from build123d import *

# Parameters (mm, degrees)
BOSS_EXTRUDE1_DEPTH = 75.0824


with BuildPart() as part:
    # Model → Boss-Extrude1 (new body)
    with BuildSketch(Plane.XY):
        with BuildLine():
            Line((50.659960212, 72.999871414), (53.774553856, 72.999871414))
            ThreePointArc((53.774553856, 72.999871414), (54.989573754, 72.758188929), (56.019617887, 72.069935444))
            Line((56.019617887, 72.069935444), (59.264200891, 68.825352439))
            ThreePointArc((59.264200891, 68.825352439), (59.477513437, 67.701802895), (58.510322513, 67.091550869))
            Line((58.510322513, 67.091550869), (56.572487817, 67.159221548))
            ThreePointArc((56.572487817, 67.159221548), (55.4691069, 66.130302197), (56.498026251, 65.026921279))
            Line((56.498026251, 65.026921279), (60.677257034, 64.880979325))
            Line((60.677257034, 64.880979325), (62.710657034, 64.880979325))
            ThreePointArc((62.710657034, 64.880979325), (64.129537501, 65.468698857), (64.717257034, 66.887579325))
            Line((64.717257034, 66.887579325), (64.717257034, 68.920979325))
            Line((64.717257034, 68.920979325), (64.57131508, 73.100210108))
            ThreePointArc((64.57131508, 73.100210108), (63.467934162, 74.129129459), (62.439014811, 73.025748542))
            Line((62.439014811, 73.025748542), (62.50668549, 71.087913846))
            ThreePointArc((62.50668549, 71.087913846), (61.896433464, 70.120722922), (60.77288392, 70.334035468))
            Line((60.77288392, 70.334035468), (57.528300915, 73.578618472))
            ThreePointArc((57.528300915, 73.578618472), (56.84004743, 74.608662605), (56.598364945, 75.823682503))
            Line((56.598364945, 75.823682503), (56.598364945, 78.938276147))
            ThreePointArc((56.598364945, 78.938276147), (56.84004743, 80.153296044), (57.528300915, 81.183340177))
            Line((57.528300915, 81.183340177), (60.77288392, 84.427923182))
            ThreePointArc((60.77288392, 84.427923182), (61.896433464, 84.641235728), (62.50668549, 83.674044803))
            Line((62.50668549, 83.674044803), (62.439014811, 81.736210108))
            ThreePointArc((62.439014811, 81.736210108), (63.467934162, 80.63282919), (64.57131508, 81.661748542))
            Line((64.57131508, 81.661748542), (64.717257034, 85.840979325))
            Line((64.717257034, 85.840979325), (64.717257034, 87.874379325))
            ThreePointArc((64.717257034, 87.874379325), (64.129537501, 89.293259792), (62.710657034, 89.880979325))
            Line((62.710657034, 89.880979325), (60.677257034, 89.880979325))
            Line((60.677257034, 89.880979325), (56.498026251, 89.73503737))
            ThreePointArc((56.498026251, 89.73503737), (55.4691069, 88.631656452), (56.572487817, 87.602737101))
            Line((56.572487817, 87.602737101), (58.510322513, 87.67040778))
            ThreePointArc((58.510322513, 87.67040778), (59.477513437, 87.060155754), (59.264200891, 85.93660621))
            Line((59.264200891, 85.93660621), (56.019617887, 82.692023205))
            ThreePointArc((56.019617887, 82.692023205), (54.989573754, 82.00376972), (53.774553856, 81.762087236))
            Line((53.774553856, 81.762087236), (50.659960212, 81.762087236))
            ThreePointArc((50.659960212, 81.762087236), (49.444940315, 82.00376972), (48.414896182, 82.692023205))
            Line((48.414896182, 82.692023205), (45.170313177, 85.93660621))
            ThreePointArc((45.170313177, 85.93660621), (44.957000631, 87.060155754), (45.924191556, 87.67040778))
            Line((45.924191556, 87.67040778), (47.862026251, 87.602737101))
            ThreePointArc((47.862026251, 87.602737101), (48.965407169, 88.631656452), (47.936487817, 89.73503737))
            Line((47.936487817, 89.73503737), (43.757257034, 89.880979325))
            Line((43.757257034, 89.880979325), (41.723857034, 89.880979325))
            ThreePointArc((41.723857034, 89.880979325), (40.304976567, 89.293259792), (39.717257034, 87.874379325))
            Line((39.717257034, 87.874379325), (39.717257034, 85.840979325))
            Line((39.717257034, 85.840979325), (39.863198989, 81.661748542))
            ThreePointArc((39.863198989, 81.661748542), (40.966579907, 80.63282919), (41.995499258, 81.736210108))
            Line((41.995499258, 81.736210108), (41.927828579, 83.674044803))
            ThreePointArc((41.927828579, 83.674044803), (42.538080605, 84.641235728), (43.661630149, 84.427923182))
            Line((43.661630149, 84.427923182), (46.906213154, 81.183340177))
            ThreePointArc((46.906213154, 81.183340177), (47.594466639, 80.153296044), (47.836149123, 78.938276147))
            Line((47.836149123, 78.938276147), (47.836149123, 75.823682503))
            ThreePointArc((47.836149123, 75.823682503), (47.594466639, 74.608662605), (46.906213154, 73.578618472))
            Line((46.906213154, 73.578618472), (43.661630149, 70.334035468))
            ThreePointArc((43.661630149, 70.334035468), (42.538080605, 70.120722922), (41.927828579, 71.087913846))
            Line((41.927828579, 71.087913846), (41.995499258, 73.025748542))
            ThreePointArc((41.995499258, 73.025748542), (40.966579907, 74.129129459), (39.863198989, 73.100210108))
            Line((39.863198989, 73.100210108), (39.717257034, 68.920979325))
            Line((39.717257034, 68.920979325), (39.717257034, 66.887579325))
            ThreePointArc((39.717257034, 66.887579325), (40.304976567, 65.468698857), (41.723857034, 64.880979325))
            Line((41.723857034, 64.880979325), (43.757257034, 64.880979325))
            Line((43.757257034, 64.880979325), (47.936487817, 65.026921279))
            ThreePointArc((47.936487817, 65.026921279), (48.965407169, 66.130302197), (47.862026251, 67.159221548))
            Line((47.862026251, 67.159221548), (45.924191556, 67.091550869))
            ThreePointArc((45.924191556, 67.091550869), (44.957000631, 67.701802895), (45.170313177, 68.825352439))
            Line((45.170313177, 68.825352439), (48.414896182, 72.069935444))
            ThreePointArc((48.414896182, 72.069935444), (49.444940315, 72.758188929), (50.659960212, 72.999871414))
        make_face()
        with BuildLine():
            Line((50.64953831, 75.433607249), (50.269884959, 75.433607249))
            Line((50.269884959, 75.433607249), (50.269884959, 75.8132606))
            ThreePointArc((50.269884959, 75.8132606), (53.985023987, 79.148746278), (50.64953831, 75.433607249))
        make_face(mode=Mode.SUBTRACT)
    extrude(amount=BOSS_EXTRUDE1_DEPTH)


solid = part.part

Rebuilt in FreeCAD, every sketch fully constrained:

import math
import FreeCAD as App
import Part
import Sketcher
Q = App.Units.Quantity

doc = App.newDocument("Part")
params = doc.addObject("Spreadsheet::Sheet", "Params")
for row, (alias, value) in enumerate([
    ("sketch1_radius", "0.04 in"),
    ("sketch1_radius2", "0.125 in"),
    ("sketch1_radius3", "0.042 in"),
    ("sketch1_radius4", "0.079 in"),
    ("pad1_length", "2.956 in"),
], start=1):
    params.set(f"A{row}", alias)
    params.set(f"B{row}", "=" + value)
    params.setAlias(f"B{row}", alias)

body = doc.addObject("PartDesign::Body", "Body")

# Sketch on XY plane
sketch1 = doc.addObject("Sketcher::SketchObject", "Sketch")
body.addObject(sketch1)
sketch1.AttachmentSupport = (doc.XY_Plane, [""])
sketch1.MapMode = "FlatFace"
sketch1.addGeometry(Part.LineSegment(App.Vector(50.65996, 72.999871, 0), App.Vector(53.774554, 72.999871, 0)), False)
sketch1.addGeometry(Part.ArcOfCircle(Part.Circle(App.Vector(53.774554, 69.824871, 0), App.Vector(0, 0, 1), 3.175), math.radians(45), math.radians(90)), False)
sketch1.addGeometry(Part.LineSegment(App.Vector(56.019618, 72.069935, 0), App.Vector(59.264201, 68.825352, 0)), False)
sketch1.addGeometry(Part.ArcOfCircle(Part.Circle(App.Vector(58.54578, 68.106932, 0), App.Vector(0, 0, 1), 1.016), math.radians(-92), math.radians(45)), False)
sketch1.addGeometry(Part.LineSegment(App.Vector(58.510323, 67.091551, 0), App.Vector(56.572488, 67.159222, 0)), False)
sketch1.addGeometry(Part.ArcOfCircle(Part.Circle(App.Vector(56.535257, 66.093071, 0), App.Vector(0, 0, 1), 1.0668), math.radians(88), math.radians(268)), False)
sketch1.addGeometry(Part.LineSegment(App.Vector(56.498026, 65.026921, 0), App.Vector(60.677257, 64.880979, 0)), False)
sketch1.addGeometry(Part.LineSegment(App.Vector(60.677257, 64.880979, 0), App.Vector(62.710657, 64.880979, 0)), False)
sketch1.addGeometry(Part.ArcOfCircle(Part.Circle(App.Vector(62.710657, 66.887579, 0), App.Vector(0, 0, 1), 2.0066), math.radians(-90), math.radians(0)), False)
sketch1.addGeometry(Part.LineSegment(App.Vector(64.717257, 66.887579, 0), App.Vector(64.717257, 68.920979, 0)), False)
sketch1.addGeometry(Part.LineSegment(App.Vector(64.717257, 68.920979, 0), App.Vector(64.571315, 73.10021, 0)), False)
sketch1.addGeometry(Part.ArcOfCircle(Part.Circle(App.Vector(63.505165, 73.062979, 0), App.Vector(0, 0, 1), 1.0668), math.radians(2), math.radians(182)), False)
sketch1.addGeometry(Part.LineSegment(App.Vector(62.439015, 73.025749, 0), App.Vector(62.506685, 71.087914, 0)), False)
sketch1.addGeometry(Part.ArcOfCircle(Part.Circle(App.Vector(61.491304, 71.052456, 0), App.Vector(0, 0, 1), 1.016), math.radians(-135), math.radians(2)), False)
sketch1.addGeometry(Part.LineSegment(App.Vector(60.772884, 70.334035, 0), App.Vector(57.528301, 73.578618, 0)), False)
sketch1.addGeometry(Part.ArcOfCircle(Part.Circle(App.Vector(59.773365, 75.823683, 0), App.Vector(0, 0, 1), 3.175), math.radians(-180), math.radians(-135)), False)
sketch1.addGeometry(Part.LineSegment(App.Vector(56.598365, 75.823683, 0), App.Vector(56.598365, 78.938276, 0)), False)
sketch1.addGeometry(Part.ArcOfCircle(Part.Circle(App.Vector(59.773365, 78.938276, 0), App.Vector(0, 0, 1), 3.175), math.radians(135), math.radians(180)), False)
sketch1.addGeometry(Part.LineSegment(App.Vector(57.528301, 81.18334, 0), App.Vector(60.772884, 84.427923, 0)), False)
sketch1.addGeometry(Part.ArcOfCircle(Part.Circle(App.Vector(61.491304, 83.709503, 0), App.Vector(0, 0, 1), 1.016), math.radians(-2), math.radians(135)), False)
sketch1.addGeometry(Part.LineSegment(App.Vector(62.506685, 83.674045, 0), App.Vector(62.439015, 81.73621, 0)), False)
sketch1.addGeometry(Part.ArcOfCircle(Part.Circle(App.Vector(63.505165, 81.698979, 0), App.Vector(0, 0, 1), 1.0668), math.radians(178), math.radians(358)), False)
sketch1.addGeometry(Part.LineSegment(App.Vector(64.571315, 81.661749, 0), App.Vector(64.717257, 85.840979, 0)), False)
sketch1.addGeometry(Part.LineSegment(App.Vector(64.717257, 85.840979, 0), App.Vector(64.717257, 87.874379, 0)), False)
sketch1.addGeometry(Part.ArcOfCircle(Part.Circle(App.Vector(62.710657, 87.874379, 0), App.Vector(0, 0, 1), 2.0066), math.radians(0), math.radians(90)), False)
sketch1.addGeometry(Part.LineSegment(App.Vector(62.710657, 89.880979, 0), App.Vector(60.677257, 89.880979, 0)), False)
sketch1.addGeometry(Part.LineSegment(App.Vector(60.677257, 89.880979, 0), App.Vector(56.498026, 89.735037, 0)), False)
sketch1.addGeometry(Part.ArcOfCircle(Part.Circle(App.Vector(56.535257, 88.668887, 0), App.Vector(0, 0, 1), 1.0668), math.radians(92), math.radians(272)), False)
sketch1.addGeometry(Part.LineSegment(App.Vector(56.572488, 87.602737, 0), App.Vector(58.510323, 87.670408, 0)), False)
sketch1.addGeometry(Part.ArcOfCircle(Part.Circle(App.Vector(58.54578, 86.655027, 0), App.Vector(0, 0, 1), 1.016), math.radians(-45), math.radians(92)), False)
sketch1.addGeometry(Part.LineSegment(App.Vector(59.264201, 85.936606, 0), App.Vector(56.019618, 82.692023, 0)), False)
sketch1.addGeometry(Part.ArcOfCircle(Part.Circle(App.Vector(53.774554, 84.937087, 0), App.Vector(0, 0, 1), 3.175), math.radians(-90), math.radians(-45)), False)
sketch1.addGeometry(Part.LineSegment(App.Vector(53.774554, 81.762087, 0), App.Vector(50.65996, 81.762087, 0)), False)
sketch1.addGeometry(Part.ArcOfCircle(Part.Circle(App.Vector(50.65996, 84.937087, 0), App.Vector(0, 0, 1), 3.175), math.radians(-135), math.radians(-90)), False)
sketch1.addGeometry(Part.LineSegment(App.Vector(48.414896, 82.692023, 0), App.Vector(45.170313, 85.936606, 0)), False)
sketch1.addGeometry(Part.ArcOfCircle(Part.Circle(App.Vector(45.888734, 86.655027, 0), App.Vector(0, 0, 1), 1.016), math.radians(88), math.radians(225)), False)
sketch1.addGeometry(Part.LineSegment(App.Vector(45.924192, 87.670408, 0), App.Vector(47.862026, 87.602737, 0)), False)
sketch1.addGeometry(Part.ArcOfCircle(Part.Circle(App.Vector(47.899257, 88.668887, 0), App.Vector(0, 0, 1), 1.0668), math.radians(-92), math.radians(88)), False)
sketch1.addGeometry(Part.LineSegment(App.Vector(47.936488, 89.735037, 0), App.Vector(43.757257, 89.880979, 0)), False)
sketch1.addGeometry(Part.LineSegment(App.Vector(43.757257, 89.880979, 0), App.Vector(41.723857, 89.880979, 0)), False)
sketch1.addGeometry(Part.ArcOfCircle(Part.Circle(App.Vector(41.723857, 87.874379, 0), App.Vector(0, 0, 1), 2.0066), math.radians(90), math.radians(180)), False)
sketch1.addGeometry(Part.LineSegment(App.Vector(39.717257, 87.874379, 0), App.Vector(39.717257, 85.840979, 0)), False)
sketch1.addGeometry(Part.LineSegment(App.Vector(39.717257, 85.840979, 0), App.Vector(39.863199, 81.661749, 0)), False)
sketch1.addGeometry(Part.ArcOfCircle(Part.Circle(App.Vector(40.929349, 81.698979, 0), App.Vector(0, 0, 1), 1.0668), math.radians(-178), math.radians(2)), False)
sketch1.addGeometry(Part.LineSegment(App.Vector(41.995499, 81.73621, 0), App.Vector(41.927829, 83.674045, 0)), False)
sketch1.addGeometry(Part.ArcOfCircle(Part.Circle(App.Vector(42.94321, 83.709503, 0), App.Vector(0, 0, 1), 1.016), math.radians(45), math.radians(182)), False)
sketch1.addGeometry(Part.LineSegment(App.Vector(43.66163, 84.427923, 0), App.Vector(46.906213, 81.18334, 0)), False)
sketch1.addGeometry(Part.ArcOfCircle(Part.Circle(App.Vector(44.661149, 78.938276, 0), App.Vector(0, 0, 1), 3.175), math.radians(0), math.radians(45)), False)
sketch1.addGeometry(Part.LineSegment(App.Vector(47.836149, 78.938276, 0), App.Vector(47.836149, 75.823683, 0)), False)
sketch1.addGeometry(Part.ArcOfCircle(Part.Circle(App.Vector(44.661149, 75.823683, 0), App.Vector(0, 0, 1), 3.175), math.radians(-45), math.radians(0)), False)
sketch1.addGeometry(Part.LineSegment(App.Vector(46.906213, 73.578618, 0), App.Vector(43.66163, 70.334035, 0)), False)
sketch1.addGeometry(Part.ArcOfCircle(Part.Circle(App.Vector(42.94321, 71.052456, 0), App.Vector(0, 0, 1), 1.016), math.radians(178), math.radians(315)), False)
sketch1.addGeometry(Part.LineSegment(App.Vector(41.927829, 71.087914, 0), App.Vector(41.995499, 73.025749, 0)), False)
sketch1.addGeometry(Part.ArcOfCircle(Part.Circle(App.Vector(40.929349, 73.062979, 0), App.Vector(0, 0, 1), 1.0668), math.radians(-2), math.radians(178)), False)
sketch1.addGeometry(Part.LineSegment(App.Vector(39.863199, 73.10021, 0), App.Vector(39.717257, 68.920979, 0)), False)
sketch1.addGeometry(Part.LineSegment(App.Vector(39.717257, 68.920979, 0), App.Vector(39.717257, 66.887579, 0)), False)
sketch1.addGeometry(Part.ArcOfCircle(Part.Circle(App.Vector(41.723857, 66.887579, 0), App.Vector(0, 0, 1), 2.0066), math.radians(180), math.radians(270)), False)
sketch1.addGeometry(Part.LineSegment(App.Vector(41.723857, 64.880979, 0), App.Vector(43.757257, 64.880979, 0)), False)
sketch1.addGeometry(Part.LineSegment(App.Vector(43.757257, 64.880979, 0), App.Vector(47.936488, 65.026921, 0)), False)
sketch1.addGeometry(Part.ArcOfCircle(Part.Circle(App.Vector(47.899257, 66.093071, 0), App.Vector(0, 0, 1), 1.0668), math.radians(-88), math.radians(92)), False)
sketch1.addGeometry(Part.LineSegment(App.Vector(47.862026, 67.159222, 0), App.Vector(45.924192, 67.091551, 0)), False)
sketch1.addGeometry(Part.ArcOfCircle(Part.Circle(App.Vector(45.888734, 68.106932, 0), App.Vector(0, 0, 1), 1.016), math.radians(135), math.radians(272)), False)
sketch1.addGeometry(Part.LineSegment(App.Vector(45.170313, 68.825352, 0), App.Vector(48.414896, 72.069935, 0)), False)
sketch1.addGeometry(Part.ArcOfCircle(Part.Circle(App.Vector(50.65996, 69.824871, 0), App.Vector(0, 0, 1), 3.175), math.radians(90), math.radians(135)), False)
sketch1.addGeometry(Part.ArcOfCircle(Part.Circle(App.Vector(52.217257, 77.380979, 0), App.Vector(0, 0, 1), 2.5), math.radians(-128.835568), math.radians(218.835568)), False)
sketch1.addGeometry(Part.LineSegment(App.Vector(50.649538, 75.433607, 0), App.Vector(50.269885, 75.433607, 0)), False)
sketch1.addGeometry(Part.LineSegment(App.Vector(50.269885, 75.433607, 0), App.Vector(50.269885, 75.813261, 0)), False)
sketch1.addConstraint(Sketcher.Constraint("Tangent", 0, 2, 1, 2))
sketch1.addConstraint(Sketcher.Constraint("Tangent", 1, 1, 2, 1))
sketch1.addConstraint(Sketcher.Constraint("Tangent", 2, 2, 3, 2))
sketch1.addConstraint(Sketcher.Constraint("Tangent", 3, 1, 4, 1))
sketch1.addConstraint(Sketcher.Constraint("Tangent", 4, 2, 5, 1))
sketch1.addConstraint(Sketcher.Constraint("Tangent", 5, 2, 6, 1))
sketch1.addConstraint(Sketcher.Constraint("Coincident", 6, 2, 7, 1))
sketch1.addConstraint(Sketcher.Constraint("Tangent", 7, 2, 8, 1))
sketch1.addConstraint(Sketcher.Constraint("Tangent", 8, 2, 9, 1))
sketch1.addConstraint(Sketcher.Constraint("Coincident", 9, 2, 10, 1))
sketch1.addConstraint(Sketcher.Constraint("Tangent", 10, 2, 11, 1))
sketch1.addConstraint(Sketcher.Constraint("Tangent", 11, 2, 12, 1))
sketch1.addConstraint(Sketcher.Constraint("Tangent", 12, 2, 13, 2))
sketch1.addConstraint(Sketcher.Constraint("Tangent", 13, 1, 14, 1))
sketch1.addConstraint(Sketcher.Constraint("Tangent", 14, 2, 15, 2))
sketch1.addConstraint(Sketcher.Constraint("Tangent", 15, 1, 16, 1))
sketch1.addConstraint(Sketcher.Constraint("Tangent", 16, 2, 17, 2))
sketch1.addConstraint(Sketcher.Constraint("Tangent", 17, 1, 18, 1))
sketch1.addConstraint(Sketcher.Constraint("Tangent", 18, 2, 19, 2))
sketch1.addConstraint(Sketcher.Constraint("Tangent", 19, 1, 20, 1))
sketch1.addConstraint(Sketcher.Constraint("Tangent", 20, 2, 21, 1))
sketch1.addConstraint(Sketcher.Constraint("Tangent", 21, 2, 22, 1))
sketch1.addConstraint(Sketcher.Constraint("Coincident", 22, 2, 23, 1))
sketch1.addConstraint(Sketcher.Constraint("Tangent", 23, 2, 24, 1))
sketch1.addConstraint(Sketcher.Constraint("Tangent", 24, 2, 25, 1))
sketch1.addConstraint(Sketcher.Constraint("Coincident", 25, 2, 26, 1))
sketch1.addConstraint(Sketcher.Constraint("Tangent", 26, 2, 27, 1))
sketch1.addConstraint(Sketcher.Constraint("Tangent", 27, 2, 28, 1))
sketch1.addConstraint(Sketcher.Constraint("Tangent", 28, 2, 29, 2))
sketch1.addConstraint(Sketcher.Constraint("Tangent", 29, 1, 30, 1))
sketch1.addConstraint(Sketcher.Constraint("Tangent", 30, 2, 31, 2))
sketch1.addConstraint(Sketcher.Constraint("Tangent", 31, 1, 32, 1))
sketch1.addConstraint(Sketcher.Constraint("Tangent", 32, 2, 33, 2))
sketch1.addConstraint(Sketcher.Constraint("Tangent", 33, 1, 34, 1))
sketch1.addConstraint(Sketcher.Constraint("Tangent", 34, 2, 35, 2))
sketch1.addConstraint(Sketcher.Constraint("Tangent", 35, 1, 36, 1))
sketch1.addConstraint(Sketcher.Constraint("Tangent", 36, 2, 37, 1))
sketch1.addConstraint(Sketcher.Constraint("Tangent", 37, 2, 38, 1))
sketch1.addConstraint(Sketcher.Constraint("Coincident", 38, 2, 39, 1))
sketch1.addConstraint(Sketcher.Constraint("Tangent", 39, 2, 40, 1))
sketch1.addConstraint(Sketcher.Constraint("Tangent", 40, 2, 41, 1))
sketch1.addConstraint(Sketcher.Constraint("Coincident", 41, 2, 42, 1))
sketch1.addConstraint(Sketcher.Constraint("Tangent", 42, 2, 43, 1))
sketch1.addConstraint(Sketcher.Constraint("Tangent", 43, 2, 44, 1))
sketch1.addConstraint(Sketcher.Constraint("Tangent", 44, 2, 45, 2))
sketch1.addConstraint(Sketcher.Constraint("Tangent", 45, 1, 46, 1))
sketch1.addConstraint(Sketcher.Constraint("Tangent", 46, 2, 47, 2))
sketch1.addConstraint(Sketcher.Constraint("Tangent", 47, 1, 48, 1))
sketch1.addConstraint(Sketcher.Constraint("Tangent", 48, 2, 49, 2))
sketch1.addConstraint(Sketcher.Constraint("Tangent", 49, 1, 50, 1))
sketch1.addConstraint(Sketcher.Constraint("Tangent", 50, 2, 51, 2))
sketch1.addConstraint(Sketcher.Constraint("Tangent", 51, 1, 52, 1))
sketch1.addConstraint(Sketcher.Constraint("Tangent", 52, 2, 53, 1))
sketch1.addConstraint(Sketcher.Constraint("Tangent", 53, 2, 54, 1))
sketch1.addConstraint(Sketcher.Constraint("Coincident", 54, 2, 55, 1))
sketch1.addConstraint(Sketcher.Constraint("Tangent", 55, 2, 56, 1))
sketch1.addConstraint(Sketcher.Constraint("Tangent", 56, 2, 57, 1))
sketch1.addConstraint(Sketcher.Constraint("Coincident", 57, 2, 58, 1))
sketch1.addConstraint(Sketcher.Constraint("Tangent", 58, 2, 59, 1))
sketch1.addConstraint(Sketcher.Constraint("Tangent", 59, 2, 60, 1))
sketch1.addConstraint(Sketcher.Constraint("Tangent", 60, 2, 61, 2))
sketch1.addConstraint(Sketcher.Constraint("Tangent", 61, 1, 62, 1))
sketch1.addConstraint(Sketcher.Constraint("Tangent", 62, 2, 63, 2))
sketch1.addConstraint(Sketcher.Constraint("Tangent", 63, 1, 0, 1))
sketch1.addConstraint(Sketcher.Constraint("Coincident", 64, 1, 65, 1))
sketch1.addConstraint(Sketcher.Constraint("Coincident", 65, 2, 66, 1))
sketch1.addConstraint(Sketcher.Constraint("Coincident", 66, 2, 64, 2))
sketch1.addConstraint(Sketcher.Constraint("Horizontal", 0))
sketch1.addConstraint(Sketcher.Constraint("Horizontal", 7))
sketch1.addConstraint(Sketcher.Constraint("Vertical", 9))
sketch1.addConstraint(Sketcher.Constraint("Vertical", 16))
sketch1.addConstraint(Sketcher.Constraint("Vertical", 23))
sketch1.addConstraint(Sketcher.Constraint("Horizontal", 25))
sketch1.addConstraint(Sketcher.Constraint("Horizontal", 32))
sketch1.addConstraint(Sketcher.Constraint("Horizontal", 39))
sketch1.addConstraint(Sketcher.Constraint("Vertical", 41))
sketch1.addConstraint(Sketcher.Constraint("Vertical", 48))
sketch1.addConstraint(Sketcher.Constraint("Vertical", 55))
sketch1.addConstraint(Sketcher.Constraint("Horizontal", 57))
sketch1.addConstraint(Sketcher.Constraint("Horizontal", 65))
sketch1.addConstraint(Sketcher.Constraint("Vertical", 66))
sketch1.addConstraint(Sketcher.Constraint("Equal", 5, 11))
sketch1.addConstraint(Sketcher.Constraint("Equal", 3, 13))
sketch1.addConstraint(Sketcher.Constraint("Equal", 1, 15))
sketch1.addConstraint(Sketcher.Constraint("Equal", 15, 17))
sketch1.addConstraint(Sketcher.Constraint("Equal", 13, 19))
sketch1.addConstraint(Sketcher.Constraint("Equal", 11, 21))
sketch1.addConstraint(Sketcher.Constraint("Equal", 8, 24))
sketch1.addConstraint(Sketcher.Constraint("Equal", 21, 27))
sketch1.addConstraint(Sketcher.Constraint("Equal", 19, 29))
sketch1.addConstraint(Sketcher.Constraint("Equal", 17, 31))
sketch1.addConstraint(Sketcher.Constraint("Equal", 31, 33))
sketch1.addConstraint(Sketcher.Constraint("Equal", 29, 35))
sketch1.addConstraint(Sketcher.Constraint("Equal", 27, 37))
sketch1.addConstraint(Sketcher.Constraint("Equal", 24, 40))
sketch1.addConstraint(Sketcher.Constraint("Equal", 37, 43))
sketch1.addConstraint(Sketcher.Constraint("Equal", 35, 45))
sketch1.addConstraint(Sketcher.Constraint("Equal", 33, 47))
sketch1.addConstraint(Sketcher.Constraint("Equal", 47, 49))
sketch1.addConstraint(Sketcher.Constraint("Equal", 45, 51))
sketch1.addConstraint(Sketcher.Constraint("Equal", 43, 53))
sketch1.addConstraint(Sketcher.Constraint("Equal", 40, 56))
sketch1.addConstraint(Sketcher.Constraint("Equal", 53, 59))
sketch1.addConstraint(Sketcher.Constraint("Equal", 51, 61))
sketch1.addConstraint(Sketcher.Constraint("Equal", 49, 63))
sketch1.addConstraint(Sketcher.Constraint("Parallel", 4, 6))
sketch1.addConstraint(Sketcher.Constraint("Parallel", 10, 12))
sketch1.addConstraint(Sketcher.Constraint("Parallel", 2, 14))
sketch1.addConstraint(Sketcher.Constraint("Perpendicular", 14, 18))
sketch1.addConstraint(Sketcher.Constraint("Perpendicular", 6, 20))
sketch1.addConstraint(Sketcher.Constraint("Parallel", 20, 22))
sketch1.addConstraint(Sketcher.Constraint("Perpendicular", 12, 26))
sketch1.addConstraint(Sketcher.Constraint("Parallel", 26, 28))
sketch1.addConstraint(Sketcher.Constraint("Parallel", 18, 30))
sketch1.addConstraint(Sketcher.Constraint("Perpendicular", 30, 34))
sketch1.addConstraint(Sketcher.Constraint("Perpendicular", 22, 36))
sketch1.addConstraint(Sketcher.Constraint("Parallel", 36, 38))
sketch1.addConstraint(Sketcher.Constraint("Perpendicular", 28, 42))
sketch1.addConstraint(Sketcher.Constraint("Parallel", 42, 44))
sketch1.addConstraint(Sketcher.Constraint("Parallel", 34, 46))
sketch1.addConstraint(Sketcher.Constraint("Perpendicular", 46, 50))
sketch1.addConstraint(Sketcher.Constraint("Perpendicular", 38, 52))
sketch1.addConstraint(Sketcher.Constraint("Parallel", 52, 54))
sketch1.addConstraint(Sketcher.Constraint("Perpendicular", 44, 58))
sketch1.addConstraint(Sketcher.Constraint("Parallel", 58, 60))
sketch1.addConstraint(Sketcher.Constraint("Parallel", 50, 62))
sketch1.addConstraint(Sketcher.Constraint("Horizontal", 29, 3, 35, 3))
sketch1.addConstraint(Sketcher.Constraint("Horizontal", 27, 3, 37, 3))
sketch1.addConstraint(Sketcher.Constraint("Horizontal", 24, 3, 40, 3))
sketch1.addConstraint(Sketcher.Constraint("Horizontal", 21, 3, 43, 3))
sketch1.addConstraint(Sketcher.Constraint("Horizontal", 19, 3, 45, 3))
sketch1.addConstraint(Sketcher.Constraint("Horizontal", 17, 3, 47, 3))
sketch1.addConstraint(Sketcher.Constraint("Horizontal", 15, 3, 49, 3))
sketch1.addConstraint(Sketcher.Constraint("Horizontal", 13, 3, 51, 3))
sketch1.addConstraint(Sketcher.Constraint("Horizontal", 11, 3, 53, 3))
sketch1.addConstraint(Sketcher.Constraint("Horizontal", 8, 3, 56, 3))
sketch1.addConstraint(Sketcher.Constraint("Horizontal", 5, 3, 59, 3))
sketch1.addConstraint(Sketcher.Constraint("Horizontal", 3, 3, 61, 3))
sketch1.addConstraint(Sketcher.Constraint("Horizontal", 30, 2, 33, 1))
sketch1.addConstraint(Sketcher.Constraint("Horizontal", 22, 2, 41, 2))
sketch1.addConstraint(Sketcher.Constraint("Horizontal", 21, 2, 42, 2))
sketch1.addConstraint(Sketcher.Constraint("Horizontal", 9, 2, 54, 2))
sketch1.addConstraint(Sketcher.Constraint("Vertical", 13, 3, 19, 3))
sketch1.addConstraint(Sketcher.Constraint("Vertical", 11, 3, 21, 3))
sketch1.addConstraint(Sketcher.Constraint("Vertical", 8, 3, 24, 3))
sketch1.addConstraint(Sketcher.Constraint("Vertical", 5, 3, 27, 3))
sketch1.addConstraint(Sketcher.Constraint("Vertical", 3, 3, 29, 3))
sketch1.addConstraint(Sketcher.Constraint("Vertical", 1, 3, 31, 3))
sketch1.addConstraint(Sketcher.Constraint("Vertical", 37, 3, 59, 3))
sketch1.addConstraint(Sketcher.Constraint("Vertical", 6, 2, 25, 2))
sketch1.addConstraint(Sketcher.Constraint("Equal", 25, 39))
sketch1.addConstraint(Sketcher.Constraint("Equal", 57, 9))
sketch1.addConstraint(Sketcher.Constraint("Equal", 32, 16))
sketch1.addConstraint(Sketcher.Constraint("Equal", 9, 23))
sketch1.addConstraint(Sketcher.Constraint("Equal", 65, 66))
sketch1.addConstraint(Sketcher.Constraint("Equal", 6, 10))
sketch1.addConstraint(Sketcher.Constraint("Equal", 4, 12))
sketch1.addConstraint(Sketcher.Constraint("Equal", 2, 14))
sketch1.addConstraint(Sketcher.Constraint("Radius", 3, Q("0.04 in")))
sketch1.addConstraint(Sketcher.Constraint("Angle", 4, Q("178 deg")))
sketch1.addConstraint(Sketcher.Constraint("Radius", 1, Q("0.125 in")))
sketch1.addConstraint(Sketcher.Constraint("Radius", 5, Q("0.042 in")))
sketch1.addConstraint(Sketcher.Constraint("Radius", 8, Q("0.079 in")))
sketch1.addConstraint(Sketcher.Constraint("Radius", 64, 2.5))
sketch1.addConstraint(Sketcher.Constraint("DistanceX", 7, 1, 7, 2, 2.0334))
sketch1.addConstraint(Sketcher.Constraint("DistanceX", -1, 1, 2, 2, 59.264201))
sketch1.addConstraint(Sketcher.Constraint("DistanceX", -1, 1, 14, 2, 57.528301))
sketch1.addConstraint(Sketcher.Constraint("DistanceX", -1, 1, 42, 2, 39.863199))
sketch1.addConstraint(Sketcher.Constraint("Distance", 6, 4.181778))
sketch1.addConstraint(Sketcher.Constraint("DistanceX", 0, 1, 0, 2, 3.114594))
sketch1.addConstraint(Sketcher.Constraint("DistanceX", 65, 2, 65, 1, 0.379653))
sketch1.addConstraint(Sketcher.Constraint("DistanceY", -1, 1, 1, 3, 69.824871))
sketch1.addConstraint(Sketcher.Constraint("DistanceY", -1, 1, 64, 3, 77.380979))
sketch1.addConstraint(Sketcher.Constraint("DistanceX", -1, 1, 64, 1, 50.649538))
sketch1.setExpression("Constraints[158]", "Params.sketch1_radius")
sketch1.setExpression("Constraints[160]", "Params.sketch1_radius2")
sketch1.setExpression("Constraints[161]", "Params.sketch1_radius3")
sketch1.setExpression("Constraints[162]", "Params.sketch1_radius4")
pad1 = doc.addObject("PartDesign::Pad", "Pad")
body.addObject(pad1)
pad1.Profile = sketch1
pad1.setExpression("Length", "Params.pad1_length")

doc.recompute()
